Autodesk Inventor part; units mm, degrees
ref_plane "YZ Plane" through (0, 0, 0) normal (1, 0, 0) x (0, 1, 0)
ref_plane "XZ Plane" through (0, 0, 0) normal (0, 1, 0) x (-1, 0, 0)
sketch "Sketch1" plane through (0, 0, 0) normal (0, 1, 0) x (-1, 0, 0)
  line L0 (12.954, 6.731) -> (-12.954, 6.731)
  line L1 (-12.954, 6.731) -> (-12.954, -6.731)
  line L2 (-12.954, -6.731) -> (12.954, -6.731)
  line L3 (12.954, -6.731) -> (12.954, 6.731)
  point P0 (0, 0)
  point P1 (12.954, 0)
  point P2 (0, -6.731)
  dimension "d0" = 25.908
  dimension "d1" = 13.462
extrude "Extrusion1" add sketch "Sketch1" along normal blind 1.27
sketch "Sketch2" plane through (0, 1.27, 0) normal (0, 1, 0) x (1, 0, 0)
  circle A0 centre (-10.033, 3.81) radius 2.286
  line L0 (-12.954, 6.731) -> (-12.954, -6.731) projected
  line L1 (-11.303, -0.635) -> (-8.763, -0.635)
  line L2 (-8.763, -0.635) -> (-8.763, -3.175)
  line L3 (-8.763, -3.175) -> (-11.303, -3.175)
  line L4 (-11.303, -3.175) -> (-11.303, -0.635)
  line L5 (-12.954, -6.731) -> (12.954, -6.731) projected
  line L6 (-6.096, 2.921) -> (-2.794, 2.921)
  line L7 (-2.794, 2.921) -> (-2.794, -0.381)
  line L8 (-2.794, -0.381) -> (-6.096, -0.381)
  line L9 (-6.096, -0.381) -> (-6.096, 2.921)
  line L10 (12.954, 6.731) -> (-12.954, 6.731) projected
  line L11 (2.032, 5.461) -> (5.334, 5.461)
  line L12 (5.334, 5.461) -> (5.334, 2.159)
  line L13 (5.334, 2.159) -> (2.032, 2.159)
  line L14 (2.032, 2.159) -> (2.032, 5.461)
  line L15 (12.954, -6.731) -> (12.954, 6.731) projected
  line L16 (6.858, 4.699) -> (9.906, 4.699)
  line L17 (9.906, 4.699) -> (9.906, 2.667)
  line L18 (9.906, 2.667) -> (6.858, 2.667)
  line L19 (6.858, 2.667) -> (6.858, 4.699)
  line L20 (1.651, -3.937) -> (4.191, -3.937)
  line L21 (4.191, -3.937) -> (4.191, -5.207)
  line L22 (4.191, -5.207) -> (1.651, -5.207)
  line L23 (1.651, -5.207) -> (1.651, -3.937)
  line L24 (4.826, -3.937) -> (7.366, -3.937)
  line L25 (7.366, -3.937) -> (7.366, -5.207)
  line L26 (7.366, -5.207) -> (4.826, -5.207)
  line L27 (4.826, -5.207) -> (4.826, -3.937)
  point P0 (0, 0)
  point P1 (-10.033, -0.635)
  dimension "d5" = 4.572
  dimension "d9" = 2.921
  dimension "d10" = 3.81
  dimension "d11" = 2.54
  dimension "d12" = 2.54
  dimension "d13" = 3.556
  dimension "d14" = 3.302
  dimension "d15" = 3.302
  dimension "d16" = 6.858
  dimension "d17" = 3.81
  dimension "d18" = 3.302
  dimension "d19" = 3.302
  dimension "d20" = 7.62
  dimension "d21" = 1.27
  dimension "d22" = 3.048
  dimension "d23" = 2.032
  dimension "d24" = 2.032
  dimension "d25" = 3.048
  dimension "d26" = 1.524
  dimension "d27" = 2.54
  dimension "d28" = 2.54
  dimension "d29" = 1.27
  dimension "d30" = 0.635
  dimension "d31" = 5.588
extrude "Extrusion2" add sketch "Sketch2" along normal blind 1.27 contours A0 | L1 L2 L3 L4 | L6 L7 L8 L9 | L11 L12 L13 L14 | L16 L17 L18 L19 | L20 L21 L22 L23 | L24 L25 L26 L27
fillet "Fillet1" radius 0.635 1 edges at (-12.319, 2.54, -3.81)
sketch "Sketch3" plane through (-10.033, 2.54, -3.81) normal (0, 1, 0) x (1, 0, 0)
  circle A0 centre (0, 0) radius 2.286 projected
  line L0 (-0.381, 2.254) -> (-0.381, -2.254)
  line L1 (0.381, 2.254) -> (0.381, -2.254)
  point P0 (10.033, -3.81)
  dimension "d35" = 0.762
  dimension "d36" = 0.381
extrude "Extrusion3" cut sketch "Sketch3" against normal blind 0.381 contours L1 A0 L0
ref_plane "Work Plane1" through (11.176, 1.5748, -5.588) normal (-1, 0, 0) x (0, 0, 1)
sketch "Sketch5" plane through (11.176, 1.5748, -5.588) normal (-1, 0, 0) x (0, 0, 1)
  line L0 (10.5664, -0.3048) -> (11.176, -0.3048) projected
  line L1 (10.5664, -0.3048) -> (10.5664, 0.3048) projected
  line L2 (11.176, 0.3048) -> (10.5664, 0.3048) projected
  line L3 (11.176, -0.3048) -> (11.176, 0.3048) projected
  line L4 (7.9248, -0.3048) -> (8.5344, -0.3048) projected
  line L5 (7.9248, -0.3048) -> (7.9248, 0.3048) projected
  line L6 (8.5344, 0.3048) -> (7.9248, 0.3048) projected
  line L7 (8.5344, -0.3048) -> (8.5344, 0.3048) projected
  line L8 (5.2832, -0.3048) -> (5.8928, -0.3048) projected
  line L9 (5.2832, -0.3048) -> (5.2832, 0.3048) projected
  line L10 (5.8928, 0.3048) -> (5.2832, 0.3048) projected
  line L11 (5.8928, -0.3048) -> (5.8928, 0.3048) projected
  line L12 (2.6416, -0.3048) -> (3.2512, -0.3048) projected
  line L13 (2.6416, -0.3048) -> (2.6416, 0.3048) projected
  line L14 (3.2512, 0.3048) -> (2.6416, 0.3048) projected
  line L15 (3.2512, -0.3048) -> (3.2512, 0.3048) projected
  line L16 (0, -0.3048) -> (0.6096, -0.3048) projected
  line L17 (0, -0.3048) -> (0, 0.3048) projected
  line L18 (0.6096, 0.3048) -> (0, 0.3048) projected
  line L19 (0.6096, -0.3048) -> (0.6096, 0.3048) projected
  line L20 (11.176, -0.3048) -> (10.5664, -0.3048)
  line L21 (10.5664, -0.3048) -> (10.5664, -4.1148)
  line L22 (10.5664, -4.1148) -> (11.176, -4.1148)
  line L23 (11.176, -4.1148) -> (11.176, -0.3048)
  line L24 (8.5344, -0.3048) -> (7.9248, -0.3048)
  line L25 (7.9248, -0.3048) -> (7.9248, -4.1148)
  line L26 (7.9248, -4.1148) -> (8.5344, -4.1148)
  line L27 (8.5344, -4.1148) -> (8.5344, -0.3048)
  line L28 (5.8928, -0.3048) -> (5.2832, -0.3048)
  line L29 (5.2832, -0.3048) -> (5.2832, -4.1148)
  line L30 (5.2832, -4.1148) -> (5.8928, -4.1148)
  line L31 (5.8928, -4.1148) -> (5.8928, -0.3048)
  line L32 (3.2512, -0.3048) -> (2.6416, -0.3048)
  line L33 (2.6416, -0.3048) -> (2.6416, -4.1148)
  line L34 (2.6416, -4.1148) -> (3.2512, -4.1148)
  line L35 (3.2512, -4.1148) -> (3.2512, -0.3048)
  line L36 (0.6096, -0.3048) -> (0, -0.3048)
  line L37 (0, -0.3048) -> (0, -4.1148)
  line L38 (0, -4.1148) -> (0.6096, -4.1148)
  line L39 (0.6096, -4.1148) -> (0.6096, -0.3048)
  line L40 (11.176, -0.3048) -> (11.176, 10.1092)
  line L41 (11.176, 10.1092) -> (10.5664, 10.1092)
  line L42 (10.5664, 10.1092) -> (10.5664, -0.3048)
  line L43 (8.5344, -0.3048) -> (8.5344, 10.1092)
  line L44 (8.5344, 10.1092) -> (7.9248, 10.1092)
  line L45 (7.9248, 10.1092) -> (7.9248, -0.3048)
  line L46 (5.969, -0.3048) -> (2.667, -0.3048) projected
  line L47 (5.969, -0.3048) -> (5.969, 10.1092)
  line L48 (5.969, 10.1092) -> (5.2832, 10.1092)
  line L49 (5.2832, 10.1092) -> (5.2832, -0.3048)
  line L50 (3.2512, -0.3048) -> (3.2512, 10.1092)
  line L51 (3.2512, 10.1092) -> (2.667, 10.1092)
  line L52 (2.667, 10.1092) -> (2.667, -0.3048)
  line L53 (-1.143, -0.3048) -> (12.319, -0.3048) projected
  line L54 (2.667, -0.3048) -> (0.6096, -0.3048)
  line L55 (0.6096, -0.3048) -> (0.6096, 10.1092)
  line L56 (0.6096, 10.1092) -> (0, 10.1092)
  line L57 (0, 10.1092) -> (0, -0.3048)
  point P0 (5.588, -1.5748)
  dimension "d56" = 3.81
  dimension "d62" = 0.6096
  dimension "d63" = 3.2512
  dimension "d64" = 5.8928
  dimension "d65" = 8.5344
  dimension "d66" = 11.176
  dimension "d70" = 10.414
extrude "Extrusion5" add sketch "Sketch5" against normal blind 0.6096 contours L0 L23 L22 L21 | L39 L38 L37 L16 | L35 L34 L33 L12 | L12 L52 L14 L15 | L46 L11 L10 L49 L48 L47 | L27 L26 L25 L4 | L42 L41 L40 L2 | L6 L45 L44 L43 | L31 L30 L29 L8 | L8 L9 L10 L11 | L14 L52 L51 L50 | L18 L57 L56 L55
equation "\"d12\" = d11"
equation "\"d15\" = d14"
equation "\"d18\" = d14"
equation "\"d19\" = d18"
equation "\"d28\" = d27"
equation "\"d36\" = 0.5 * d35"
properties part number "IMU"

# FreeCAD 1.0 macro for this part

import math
import FreeCAD as App
import Part
import Sketcher
Q = App.Units.Quantity


def edges_at(feature, points):
    """Names of the edges that pass closest to the given points."""
    edges = feature.Shape.Edges
    near = lambda p: min(range(len(edges)), key=lambda i: edges[i].distToShape(Part.Vertex(*p))[0])
    return sorted({f"Edge{near(p) + 1}" for p in points})


def add_polygon(sketch, points):
    """Adds a closed chain of lines whose ends are joined by coincident constraints."""
    first, n = sketch.GeometryCount, len(points)
    for a, b in zip(points, points[1:] + points[:1]):
        sketch.addGeometry(Part.LineSegment(App.Vector(*a, 0), App.Vector(*b, 0)), False)
    for i in range(n):
        sketch.addConstraint(Sketcher.Constraint("Coincident", first + i, 2, first + (i + 1) % n, 1))

doc = App.newDocument("Part")
body = doc.addObject("PartDesign::Body", "Body")
body.AllowCompound = True

# Sketch on XZ plane
sketch1 = body.newObject("Sketcher::SketchObject", "Sketch")
sketch1.AttachmentSupport = (doc.getObject("XZ_Plane"), [""])
sketch1.MapMode = "FlatFace"
add_polygon(sketch1, [(-13, -7), (-13, 7), (13, 7), (13, -7)])  # lines 0-3
sketch1.addConstraint([
    Sketcher.Constraint("Vertical", 0),
    Sketcher.Constraint("Horizontal", 1),
    Sketcher.Constraint("Vertical", 2),
    Sketcher.Constraint("Horizontal", 3),
    Sketcher.Constraint("Symmetric", 0, 2, 2, 2, -1, 1),
    Sketcher.Constraint("DistanceX", 1, 1, 1, 2, Q("1.02 in")),
    Sketcher.Constraint("DistanceY", 0, 1, 0, 2, Q("0.53 in")),
])
pad1 = body.newObject("PartDesign::Pad", "Pad")
pad1.Profile = sketch1
pad1.Length = Q("0.05 in")
pad1.Reversed = True

# Sketch on XZ plane
sketch2 = body.newObject("Sketcher::SketchObject", "Sketch001")
sketch2.AttachmentSupport = (doc.getObject("XZ_Plane"), [""])
sketch2.MapMode = "FlatFace"
sketch2.AttachmentOffset = App.Placement(App.Vector(0, 0, -0.05 * 25.4), App.Rotation())
sketch2.addGeometry(Part.Circle(App.Vector(-10, -3.8, 0), App.Vector(0, 0, 1), 2.3), False)  # 0
add_polygon(sketch2, [(-8.8, 0.6), (-11.3, 0.6), (-11.3, 3.2), (-8.8, 3.2)])  # lines 1-4
add_polygon(sketch2, [(-2.8, -2.9), (-6.1, -2.9), (-6.1, 0.4), (-2.8, 0.4)])  # lines 5-8
add_polygon(sketch2, [(5.3, -5.5), (2, -5.5), (2, -2.2), (5.3, -2.2)])  # lines 9-12
add_polygon(sketch2, [(9.9, -4.7), (6.9, -4.7), (6.9, -2.7), (9.9, -2.7)])  # lines 13-16
add_polygon(sketch2, [(4.2, 3.9), (1.7, 3.9), (1.7, 5.2), (4.2, 5.2)])  # lines 17-20
add_polygon(sketch2, [(7.4, 3.9), (4.8, 3.9), (4.8, 5.2), (7.4, 5.2)])  # lines 21-24
sketch2.addConstraint([
    Sketcher.Constraint("Horizontal", 1),
    Sketcher.Constraint("Vertical", 2),
    Sketcher.Constraint("Horizontal", 3),
    Sketcher.Constraint("Vertical", 4),
    Sketcher.Constraint("Horizontal", 5),
    Sketcher.Constraint("Vertical", 6),
    Sketcher.Constraint("Horizontal", 7),
    Sketcher.Constraint("Vertical", 8),
    Sketcher.Constraint("Horizontal", 9),
    Sketcher.Constraint("Vertical", 10),
    Sketcher.Constraint("Horizontal", 11),
    Sketcher.Constraint("Vertical", 12),
    Sketcher.Constraint("Horizontal", 13),
    Sketcher.Constraint("Vertical", 14),
    Sketcher.Constraint("Horizontal", 15),
    Sketcher.Constraint("Vertical", 16),
    Sketcher.Constraint("Horizontal", 17),
    Sketcher.Constraint("Vertical", 18),
    Sketcher.Constraint("Horizontal", 19),
    Sketcher.Constraint("Vertical", 20),
    Sketcher.Constraint("Horizontal", 21),
    Sketcher.Constraint("Vertical", 22),
    Sketcher.Constraint("Horizontal", 23),
    Sketcher.Constraint("Vertical", 24),
    Sketcher.Constraint("Horizontal", 20, 2, 21, 2),
    Sketcher.Constraint("Horizontal", 19, 2, 22, 2),
    Sketcher.Constraint("Equal", 7, 9),
    Sketcher.Constraint("Equal", 3, 17),
    Sketcher.Constraint("Equal", 19, 21),
    Sketcher.Constraint("Equal", 23, 2),
    Sketcher.Constraint("Equal", 11, 6),
    Sketcher.Constraint("Equal", 8, 10),
    Sketcher.Constraint("Diameter", 0, Q("0.18 in")),
    Sketcher.Constraint("DistanceX", 1, 2, 1, 1, Q("0.1 in")),
    Sketcher.Constraint("DistanceX", 5, 2, 5, 1, Q("0.13 in")),
    Sketcher.Constraint("DistanceX", 13, 2, 13, 1, Q("0.12 in")),
    Sketcher.Constraint("DistanceY", 14, 1, 14, 2, Q("0.08 in")),
    Sketcher.Constraint("DistanceY", 18, 1, 18, 2, Q("0.05 in")),
    Sketcher.Constraint("DistanceY", 9, 2, 8, 2, Q("0.1 in")),
    Sketcher.Constraint("DistanceY", 13, 2, 11, 2, Q("0.1 in")),
    Sketcher.Constraint("DistanceY", 0, 3, -1, 1, Q("0.15 in")),
    Sketcher.Constraint("DistanceX", -1, 1, 9, 2, Q("0.08 in")),
    Sketcher.Constraint("DistanceX", -1, 1, 13, 2, Q("0.27 in")),
    Sketcher.Constraint("DistanceX", 1, 2, 0, 3, Q("0.05 in")),
    Sketcher.Constraint("DistanceY", 5, 2, 4, 2, Q("0.14 in")),
    Sketcher.Constraint("DistanceY", 7, 2, 17, 2, Q("0.14 in")),
    Sketcher.Constraint("DistanceY", -1, 1, 1, 2, Q("0.025 in")),
    Sketcher.Constraint("DistanceX", 20, 2, 21, 2, Q("0.025 in")),
    Sketcher.Constraint("DistanceX", 5, 2, -1, 1, Q("0.24 in")),
    Sketcher.Constraint("DistanceX", -1, 1, 21, 2, Q("0.19 in")),
    Sketcher.Constraint("DistanceX", 0, 3, -1, 1, Q("0.395 in")),
])
pad2 = body.newObject("PartDesign::Pad", "Pad001")
pad2.Profile = sketch2
pad2.Length = Q("0.05 in")
pad2.Reversed = True
doc.recompute()

fillet = body.newObject("PartDesign::Fillet", "Fillet")
fillet.Base = (pad2, edges_at(pad2, [(-12.319, 2.54, -3.81)]))
fillet.Radius = Q("0.025 in")

# Sketch on XZ plane
sketch3 = body.newObject("Sketcher::SketchObject", "Sketch002")
sketch3.AttachmentSupport = (doc.getObject("XZ_Plane"), [""])
sketch3.MapMode = "FlatFace"
sketch3.AttachmentOffset = App.Placement(App.Vector(0, 0, -0.1 * 25.4), App.Rotation())
sketch3.addGeometry([
    Part.LineSegment(App.Vector(-9.7, -1.6, 0), App.Vector(-9.7, -6.1, 0)),
    Part.ArcOfCircle(Part.Circle(App.Vector(-10, -3.8, 0), App.Vector(0, 0, 1), 2.3), math.radians(-99.59), math.radians(-80.41)),
    Part.LineSegment(App.Vector(-10.4, -6.1, 0), App.Vector(-10.4, -1.6, 0)),
    Part.ArcOfCircle(Part.Circle(App.Vector(-10, -3.8, 0), App.Vector(0, 0, 1), 2.3), math.radians(80.41), math.radians(99.59)),
], False)
sketch3.addConstraint([
    Sketcher.Constraint("Coincident", 0, 2, 1, 2),
    Sketcher.Constraint("Coincident", 1, 1, 2, 1),
    Sketcher.Constraint("Coincident", 2, 2, 3, 2),
    Sketcher.Constraint("Coincident", 3, 1, 0, 1),
    Sketcher.Constraint("Vertical", 0),
    Sketcher.Constraint("Vertical", 2),
    Sketcher.Constraint("Coincident", 3, 3, 1, 3),
    Sketcher.Constraint("Equal", 1, 3),
    Sketcher.Constraint("Horizontal", 0, 2, 1, 1),
    Sketcher.Constraint("Radius", 1, Q("0.09 in")),
    Sketcher.Constraint("DistanceX", 1, 1, 0, 2, Q("0.03 in")),
    Sketcher.Constraint("DistanceY", 1, 3, -1, 1, Q("0.15 in")),
    Sketcher.Constraint("DistanceX", 0, 2, -1, 1, Q("0.38 in")),
])
pocket1 = body.newObject("PartDesign::Pocket", "Pocket")
pocket1.Profile = sketch3
pocket1.Length = Q("0.015 in")
pocket1.Reversed = True

# Sketch on YZ plane
sketch4 = body.newObject("Sketcher::SketchObject", "Sketch003")
sketch4.AttachmentSupport = (doc.getObject("YZ_Plane"), [""])
sketch4.MapMode = "FlatFace"
sketch4.AttachmentOffset = App.Placement(App.Vector(0, 0, 0.44 * 25.4), App.Rotation())
add_polygon(sketch4, [(1.27, 5.588), (1.27, 4.978), (-2.54, 4.978), (-2.54, 5.588)])  # lines 0-3
add_polygon(sketch4, [(-2.54, -4.978), (1.27, -4.978), (1.27, -5.588), (-2.54, -5.588)])  # lines 4-7
add_polygon(sketch4, [(-2.54, -2.337), (11.684, -2.337), (11.684, -2.921), (1.27, -2.921), (1.27, -2.946), (-2.54, -2.946)])  # lines 8-13
add_polygon(sketch4, [(1.27, 0.305), (1.27, 0.381), (11.684, 0.381), (11.684, -0.305), (-2.54, -0.305), (-2.54, 0.305)])  # lines 14-19
add_polygon(sketch4, [(-2.54, 2.946), (1.27, 2.946), (1.27, 2.337), (-2.54, 2.337)])  # lines 20-23
add_polygon(sketch4, [(11.684, 4.978), (1.88, 4.978), (1.88, 5.588), (11.684, 5.588)])  # lines 24-27
add_polygon(sketch4, [(1.88, 2.337), (1.88, 2.946), (11.684, 2.946), (11.684, 2.337)])  # lines 28-31
add_polygon(sketch4, [(1.88, -5.588), (1.88, -4.978), (11.684, -4.978), (11.684, -5.588)])  # lines 32-35
sketch4.addConstraint([
    Sketcher.Constraint("Vertical", 0),
    Sketcher.Constraint("Horizontal", 1),
    Sketcher.Constraint("Vertical", 2),
    Sketcher.Constraint("Horizontal", 3),
    Sketcher.Constraint("Horizontal", 4),
    Sketcher.Constraint("Vertical", 5),
    Sketcher.Constraint("Horizontal", 6),
    Sketcher.Constraint("Vertical", 7),
    Sketcher.Constraint("Horizontal", 8),
    Sketcher.Constraint("Vertical", 9),
    Sketcher.Constraint("Horizontal", 10),
    Sketcher.Constraint("Vertical", 11),
    Sketcher.Constraint("Horizontal", 12),
    Sketcher.Constraint("Vertical", 13),
    Sketcher.Constraint("Vertical", 14),
    Sketcher.Constraint("Horizontal", 15),
    Sketcher.Constraint("Vertical", 16),
    Sketcher.Constraint("Horizontal", 17),
    Sketcher.Constraint("Vertical", 18),
    Sketcher.Constraint("Horizontal", 19),
    Sketcher.Constraint("Horizontal", 20),
    Sketcher.Constraint("Vertical", 21),
    Sketcher.Constraint("Horizontal", 22),
    Sketcher.Constraint("Vertical", 23),
    Sketcher.Constraint("Horizontal", 24),
    Sketcher.Constraint("Vertical", 25),
    Sketcher.Constraint("Horizontal", 26),
    Sketcher.Constraint("Vertical", 27),
    Sketcher.Constraint("Vertical", 28),
    Sketcher.Constraint("Horizontal", 29),
    Sketcher.Constraint("Vertical", 30),
    Sketcher.Constraint("Horizontal", 31),
    Sketcher.Constraint("Vertical", 32),
    Sketcher.Constraint("Horizontal", 33),
    Sketcher.Constraint("Vertical", 34),
    Sketcher.Constraint("Horizontal", 35),
    Sketcher.Constraint("Symmetric", 0, 2, 4, 2, -1),
    Sketcher.Constraint("Symmetric", 2, 2, 6, 2, -1),
    Sketcher.Constraint("Symmetric", 11, 2, 20, 2, -1),
    Sketcher.Constraint("Symmetric", 13, 2, 22, 2, -1),
    Sketcher.Constraint("Symmetric", 8, 2, 30, 2, -1),
    Sketcher.Constraint("Symmetric", 24, 2, 32, 2, -1),
    Sketcher.Constraint("Symmetric", 26, 2, 34, 2, -1),
    Sketcher.Constraint("Horizontal", 1, 2, 24, 2),
    Sketcher.Constraint("Horizontal", 3, 2, 25, 2),
    Sketcher.Constraint("Horizontal", 23, 2, 28, 2),
    Sketcher.Constraint("Vertical", 5, 2, 10, 2),
    Sketcher.Constraint("Vertical", 7, 2, 12, 2),
    Sketcher.Constraint("Vertical", 11, 2, 14, 2),
    Sketcher.Constraint("Vertical", 9, 2, 15, 2),
    Sketcher.Constraint("Vertical", 13, 2, 17, 2),
    Sketcher.Constraint("Vertical", 16, 2, 26, 2),
    Sketcher.Constraint("Vertical", 25, 2, 28, 2),
    Sketcher.Constraint("Equal", 7, 13),
    Sketcher.Constraint("Equal", 13, 18),
    Sketcher.Constraint("DistanceX", 1, 2, 1, 1, Q("0.15 in")),
    Sketcher.Constraint("DistanceX", 10, 2, 10, 1, Q("0.41 in")),
    Sketcher.Constraint("DistanceY", 0, 2, 0, 1, Q("0.024 in")),
    Sketcher.Constraint("DistanceY", 5, 2, 3, 2, Q("0.44 in")),
    Sketcher.Constraint("DistanceY", 5, 2, 8, 2, Q("0.128 in")),
    Sketcher.Constraint("DistanceY", 12, 2, 18, 2, Q("0.128 in")),
    Sketcher.Constraint("DistanceX", 0, 2, 24, 2, Q("0.024 in")),
    Sketcher.Constraint("DistanceX", 1, 2, -1, 1, Q("0.1 in")),
    Sketcher.Constraint("DistanceY", 9, 2, 9, 1, Q("0.023 in")),
    Sketcher.Constraint("DistanceY", 14, 1, 14, 2, Q("0.003 in")),
])
pad3 = body.newObject("PartDesign::Pad", "Pad002")
pad3.Profile = sketch4
pad3.Length = Q("0.024 in")

doc.recompute()
